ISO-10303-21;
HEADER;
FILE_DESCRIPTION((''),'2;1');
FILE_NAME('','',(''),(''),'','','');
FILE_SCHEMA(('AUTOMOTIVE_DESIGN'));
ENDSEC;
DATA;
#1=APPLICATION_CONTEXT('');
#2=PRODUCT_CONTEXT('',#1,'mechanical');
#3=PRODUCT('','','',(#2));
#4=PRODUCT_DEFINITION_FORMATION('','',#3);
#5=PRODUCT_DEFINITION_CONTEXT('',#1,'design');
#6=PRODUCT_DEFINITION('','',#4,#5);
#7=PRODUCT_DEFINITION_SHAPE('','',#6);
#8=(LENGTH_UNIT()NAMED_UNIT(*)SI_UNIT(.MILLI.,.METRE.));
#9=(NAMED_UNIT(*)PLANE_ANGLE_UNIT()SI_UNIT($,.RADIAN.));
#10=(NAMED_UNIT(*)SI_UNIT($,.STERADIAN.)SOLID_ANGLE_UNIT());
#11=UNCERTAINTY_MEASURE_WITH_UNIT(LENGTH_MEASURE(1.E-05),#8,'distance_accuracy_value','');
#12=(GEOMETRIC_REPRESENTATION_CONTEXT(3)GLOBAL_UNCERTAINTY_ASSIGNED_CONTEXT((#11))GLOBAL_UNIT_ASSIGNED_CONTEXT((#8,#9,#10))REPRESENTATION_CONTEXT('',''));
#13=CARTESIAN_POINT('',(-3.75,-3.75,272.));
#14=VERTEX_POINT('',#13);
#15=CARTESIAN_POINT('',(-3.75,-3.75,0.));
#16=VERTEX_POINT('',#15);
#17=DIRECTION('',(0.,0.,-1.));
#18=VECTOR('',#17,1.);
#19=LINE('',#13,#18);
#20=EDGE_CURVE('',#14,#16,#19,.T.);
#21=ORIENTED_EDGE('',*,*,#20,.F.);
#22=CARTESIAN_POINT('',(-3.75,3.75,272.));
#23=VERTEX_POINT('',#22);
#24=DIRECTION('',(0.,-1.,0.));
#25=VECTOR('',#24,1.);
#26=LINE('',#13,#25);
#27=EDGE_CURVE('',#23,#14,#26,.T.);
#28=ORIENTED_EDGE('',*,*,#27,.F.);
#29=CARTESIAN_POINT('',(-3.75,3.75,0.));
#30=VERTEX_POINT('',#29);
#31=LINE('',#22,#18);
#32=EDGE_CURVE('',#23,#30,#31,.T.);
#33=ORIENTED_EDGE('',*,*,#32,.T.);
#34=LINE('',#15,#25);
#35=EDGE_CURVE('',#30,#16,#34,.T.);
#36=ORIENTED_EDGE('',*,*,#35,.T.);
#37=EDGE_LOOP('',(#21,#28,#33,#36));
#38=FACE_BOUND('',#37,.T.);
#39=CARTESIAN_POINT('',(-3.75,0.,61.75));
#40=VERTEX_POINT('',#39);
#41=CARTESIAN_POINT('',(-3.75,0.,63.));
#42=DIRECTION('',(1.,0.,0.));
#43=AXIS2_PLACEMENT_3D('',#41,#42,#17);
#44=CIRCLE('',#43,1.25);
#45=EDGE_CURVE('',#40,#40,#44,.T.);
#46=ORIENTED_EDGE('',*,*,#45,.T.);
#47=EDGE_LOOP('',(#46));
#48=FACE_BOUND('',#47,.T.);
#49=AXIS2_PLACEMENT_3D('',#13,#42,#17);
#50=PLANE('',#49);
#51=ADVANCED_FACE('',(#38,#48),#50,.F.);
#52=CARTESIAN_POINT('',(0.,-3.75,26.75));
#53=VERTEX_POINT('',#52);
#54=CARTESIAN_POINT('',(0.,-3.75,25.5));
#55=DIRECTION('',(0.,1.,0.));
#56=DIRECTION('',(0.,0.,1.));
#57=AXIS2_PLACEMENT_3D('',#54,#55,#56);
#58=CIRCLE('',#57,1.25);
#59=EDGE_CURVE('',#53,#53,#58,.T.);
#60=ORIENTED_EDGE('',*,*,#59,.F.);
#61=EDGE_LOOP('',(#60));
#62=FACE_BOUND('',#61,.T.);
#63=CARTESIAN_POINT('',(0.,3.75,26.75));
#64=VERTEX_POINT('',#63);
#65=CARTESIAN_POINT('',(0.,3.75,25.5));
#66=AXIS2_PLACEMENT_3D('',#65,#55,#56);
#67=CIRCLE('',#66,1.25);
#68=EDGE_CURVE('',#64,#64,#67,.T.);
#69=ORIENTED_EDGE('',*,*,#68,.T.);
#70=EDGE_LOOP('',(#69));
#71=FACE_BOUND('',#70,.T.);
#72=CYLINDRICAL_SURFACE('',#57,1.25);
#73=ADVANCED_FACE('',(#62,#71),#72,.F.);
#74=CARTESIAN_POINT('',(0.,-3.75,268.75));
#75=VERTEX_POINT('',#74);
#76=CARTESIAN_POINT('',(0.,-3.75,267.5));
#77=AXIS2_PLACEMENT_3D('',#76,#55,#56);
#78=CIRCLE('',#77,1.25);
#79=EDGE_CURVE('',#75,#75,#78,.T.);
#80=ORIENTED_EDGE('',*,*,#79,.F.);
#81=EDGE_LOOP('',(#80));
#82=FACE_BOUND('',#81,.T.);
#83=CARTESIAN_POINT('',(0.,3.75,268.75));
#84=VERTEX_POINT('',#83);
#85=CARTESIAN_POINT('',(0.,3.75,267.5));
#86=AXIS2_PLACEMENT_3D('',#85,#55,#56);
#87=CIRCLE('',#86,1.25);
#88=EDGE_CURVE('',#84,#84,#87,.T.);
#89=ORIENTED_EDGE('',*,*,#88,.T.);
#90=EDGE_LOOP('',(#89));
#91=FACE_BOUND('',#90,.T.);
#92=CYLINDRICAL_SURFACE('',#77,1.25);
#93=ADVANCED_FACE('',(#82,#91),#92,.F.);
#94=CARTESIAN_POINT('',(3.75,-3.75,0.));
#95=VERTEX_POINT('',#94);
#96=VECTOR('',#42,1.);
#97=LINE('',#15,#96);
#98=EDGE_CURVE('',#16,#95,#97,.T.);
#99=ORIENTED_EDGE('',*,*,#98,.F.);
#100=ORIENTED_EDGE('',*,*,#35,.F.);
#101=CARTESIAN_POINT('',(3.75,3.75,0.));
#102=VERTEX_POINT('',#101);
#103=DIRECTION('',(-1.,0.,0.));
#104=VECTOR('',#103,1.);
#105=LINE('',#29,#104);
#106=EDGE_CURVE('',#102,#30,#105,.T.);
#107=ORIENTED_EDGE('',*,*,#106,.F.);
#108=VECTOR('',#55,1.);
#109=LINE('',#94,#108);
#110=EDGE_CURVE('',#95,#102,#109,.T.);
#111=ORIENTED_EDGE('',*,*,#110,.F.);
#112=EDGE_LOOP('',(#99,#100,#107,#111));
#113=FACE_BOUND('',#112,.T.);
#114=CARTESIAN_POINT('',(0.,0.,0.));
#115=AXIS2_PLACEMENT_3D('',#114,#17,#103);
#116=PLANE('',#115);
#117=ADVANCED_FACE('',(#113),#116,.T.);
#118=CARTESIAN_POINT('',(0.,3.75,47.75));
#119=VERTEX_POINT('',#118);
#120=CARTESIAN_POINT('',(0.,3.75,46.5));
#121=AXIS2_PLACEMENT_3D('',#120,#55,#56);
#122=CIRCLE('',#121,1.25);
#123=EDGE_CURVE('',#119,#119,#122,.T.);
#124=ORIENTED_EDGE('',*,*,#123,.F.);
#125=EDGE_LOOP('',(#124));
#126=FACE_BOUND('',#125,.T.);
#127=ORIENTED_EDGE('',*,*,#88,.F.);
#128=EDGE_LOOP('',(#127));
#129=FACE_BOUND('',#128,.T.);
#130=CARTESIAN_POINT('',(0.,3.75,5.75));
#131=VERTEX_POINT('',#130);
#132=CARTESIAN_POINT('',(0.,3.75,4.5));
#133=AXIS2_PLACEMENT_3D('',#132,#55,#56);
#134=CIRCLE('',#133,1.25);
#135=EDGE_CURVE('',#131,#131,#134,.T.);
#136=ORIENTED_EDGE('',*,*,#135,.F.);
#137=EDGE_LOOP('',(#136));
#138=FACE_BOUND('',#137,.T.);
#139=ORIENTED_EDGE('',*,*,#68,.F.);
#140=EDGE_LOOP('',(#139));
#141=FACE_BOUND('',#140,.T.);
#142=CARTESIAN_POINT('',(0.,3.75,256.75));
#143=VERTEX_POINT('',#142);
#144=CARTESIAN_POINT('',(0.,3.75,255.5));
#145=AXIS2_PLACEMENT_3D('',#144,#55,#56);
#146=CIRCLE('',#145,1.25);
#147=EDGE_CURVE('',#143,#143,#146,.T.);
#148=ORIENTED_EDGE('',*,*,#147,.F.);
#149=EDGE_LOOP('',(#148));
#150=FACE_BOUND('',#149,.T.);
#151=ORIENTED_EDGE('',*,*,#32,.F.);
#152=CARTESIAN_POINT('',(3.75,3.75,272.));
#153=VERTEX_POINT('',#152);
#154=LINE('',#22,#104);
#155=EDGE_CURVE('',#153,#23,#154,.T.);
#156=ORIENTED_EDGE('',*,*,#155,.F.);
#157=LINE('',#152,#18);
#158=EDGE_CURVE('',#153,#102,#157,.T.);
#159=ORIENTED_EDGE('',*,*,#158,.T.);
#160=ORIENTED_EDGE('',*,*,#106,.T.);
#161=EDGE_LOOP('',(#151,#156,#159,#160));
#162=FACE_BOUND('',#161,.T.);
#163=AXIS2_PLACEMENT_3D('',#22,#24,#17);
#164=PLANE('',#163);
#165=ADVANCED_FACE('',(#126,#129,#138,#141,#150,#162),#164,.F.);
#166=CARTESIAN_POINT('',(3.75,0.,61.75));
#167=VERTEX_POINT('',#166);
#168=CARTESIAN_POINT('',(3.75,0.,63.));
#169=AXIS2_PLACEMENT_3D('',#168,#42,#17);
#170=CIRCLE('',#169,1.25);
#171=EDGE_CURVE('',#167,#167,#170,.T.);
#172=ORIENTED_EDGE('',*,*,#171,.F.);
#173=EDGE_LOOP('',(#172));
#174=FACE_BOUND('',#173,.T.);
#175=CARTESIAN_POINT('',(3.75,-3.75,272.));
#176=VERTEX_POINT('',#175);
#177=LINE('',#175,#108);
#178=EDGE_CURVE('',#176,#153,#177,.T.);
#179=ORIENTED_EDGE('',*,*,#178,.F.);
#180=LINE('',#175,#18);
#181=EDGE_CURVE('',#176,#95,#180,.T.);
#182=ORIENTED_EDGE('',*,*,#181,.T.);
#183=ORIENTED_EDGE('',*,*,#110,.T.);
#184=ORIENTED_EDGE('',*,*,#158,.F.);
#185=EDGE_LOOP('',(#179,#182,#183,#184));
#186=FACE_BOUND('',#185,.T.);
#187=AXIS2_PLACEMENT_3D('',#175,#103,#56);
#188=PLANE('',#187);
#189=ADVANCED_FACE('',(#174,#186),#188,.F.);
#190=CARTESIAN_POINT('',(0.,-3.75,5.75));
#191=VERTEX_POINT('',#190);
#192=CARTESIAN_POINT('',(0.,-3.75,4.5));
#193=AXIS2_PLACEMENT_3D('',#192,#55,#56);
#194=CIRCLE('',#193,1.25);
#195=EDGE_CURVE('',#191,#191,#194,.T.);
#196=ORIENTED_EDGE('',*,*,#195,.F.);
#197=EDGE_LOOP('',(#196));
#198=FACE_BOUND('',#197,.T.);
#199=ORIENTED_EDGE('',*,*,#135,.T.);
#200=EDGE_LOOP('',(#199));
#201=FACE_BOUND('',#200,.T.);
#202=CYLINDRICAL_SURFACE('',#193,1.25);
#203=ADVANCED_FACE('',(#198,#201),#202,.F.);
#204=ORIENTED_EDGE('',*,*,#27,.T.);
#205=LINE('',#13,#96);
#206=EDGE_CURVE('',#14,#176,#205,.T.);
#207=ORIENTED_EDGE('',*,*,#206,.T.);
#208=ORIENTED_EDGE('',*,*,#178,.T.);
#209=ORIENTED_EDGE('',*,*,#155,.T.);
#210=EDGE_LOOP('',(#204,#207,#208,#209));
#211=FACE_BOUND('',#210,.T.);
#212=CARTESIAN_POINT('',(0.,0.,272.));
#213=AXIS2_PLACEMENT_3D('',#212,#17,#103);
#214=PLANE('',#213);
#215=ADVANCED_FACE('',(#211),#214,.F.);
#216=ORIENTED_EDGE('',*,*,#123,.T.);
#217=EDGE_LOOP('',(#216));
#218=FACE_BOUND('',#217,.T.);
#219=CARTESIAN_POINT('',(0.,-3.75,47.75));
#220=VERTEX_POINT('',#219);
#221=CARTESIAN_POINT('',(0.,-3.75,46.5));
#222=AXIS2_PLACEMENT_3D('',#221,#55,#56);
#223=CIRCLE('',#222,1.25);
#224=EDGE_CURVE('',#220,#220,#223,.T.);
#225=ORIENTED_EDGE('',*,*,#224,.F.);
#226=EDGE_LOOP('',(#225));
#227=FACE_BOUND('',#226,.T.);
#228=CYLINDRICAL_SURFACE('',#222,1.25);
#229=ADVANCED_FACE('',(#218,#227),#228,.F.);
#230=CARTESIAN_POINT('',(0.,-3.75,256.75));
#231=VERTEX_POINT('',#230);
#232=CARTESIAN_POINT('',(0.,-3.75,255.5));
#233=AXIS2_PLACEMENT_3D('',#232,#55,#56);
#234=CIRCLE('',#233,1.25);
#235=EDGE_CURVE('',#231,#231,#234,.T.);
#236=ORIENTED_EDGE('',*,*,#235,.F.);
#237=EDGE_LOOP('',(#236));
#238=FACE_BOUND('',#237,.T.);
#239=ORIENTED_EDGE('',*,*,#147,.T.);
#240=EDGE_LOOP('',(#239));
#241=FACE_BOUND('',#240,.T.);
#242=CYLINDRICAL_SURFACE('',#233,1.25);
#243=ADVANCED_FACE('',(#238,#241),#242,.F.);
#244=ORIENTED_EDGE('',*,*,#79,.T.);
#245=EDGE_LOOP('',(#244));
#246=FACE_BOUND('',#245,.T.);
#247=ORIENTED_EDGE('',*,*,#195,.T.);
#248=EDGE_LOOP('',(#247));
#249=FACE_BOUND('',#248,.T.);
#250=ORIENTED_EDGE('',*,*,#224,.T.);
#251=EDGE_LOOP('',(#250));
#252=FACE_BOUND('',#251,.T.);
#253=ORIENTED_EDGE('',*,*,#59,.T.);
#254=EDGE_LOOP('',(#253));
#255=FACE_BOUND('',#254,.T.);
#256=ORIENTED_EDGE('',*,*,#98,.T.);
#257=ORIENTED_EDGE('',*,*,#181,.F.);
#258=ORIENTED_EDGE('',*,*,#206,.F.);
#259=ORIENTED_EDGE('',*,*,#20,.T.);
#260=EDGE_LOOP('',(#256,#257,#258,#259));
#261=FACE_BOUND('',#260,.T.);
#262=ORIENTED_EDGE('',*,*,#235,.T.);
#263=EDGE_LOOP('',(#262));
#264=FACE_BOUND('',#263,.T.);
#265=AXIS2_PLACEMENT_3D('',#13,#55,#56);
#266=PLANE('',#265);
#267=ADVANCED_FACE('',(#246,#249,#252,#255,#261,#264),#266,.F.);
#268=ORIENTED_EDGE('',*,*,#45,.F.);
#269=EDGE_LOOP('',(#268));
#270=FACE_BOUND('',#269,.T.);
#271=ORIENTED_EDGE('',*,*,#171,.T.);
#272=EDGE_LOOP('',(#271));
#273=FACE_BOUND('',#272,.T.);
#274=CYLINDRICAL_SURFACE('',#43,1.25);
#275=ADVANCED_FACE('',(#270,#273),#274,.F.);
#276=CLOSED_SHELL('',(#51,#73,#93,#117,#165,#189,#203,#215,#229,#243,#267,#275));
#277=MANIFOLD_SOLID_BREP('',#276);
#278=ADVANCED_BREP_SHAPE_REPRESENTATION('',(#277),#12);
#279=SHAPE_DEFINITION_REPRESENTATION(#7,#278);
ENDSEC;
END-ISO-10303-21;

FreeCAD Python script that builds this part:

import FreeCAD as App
import Part
import Sketcher

V = App.Vector
Q = App.Units.Quantity

doc = App.newDocument("Part")
body = doc.addObject("PartDesign::Body", "Body")

# Sketch on XY plane
sketch1 = doc.addObject("Sketcher::SketchObject", "Sketch")
body.addObject(sketch1)
sketch1.AttachmentSupport = (doc.XY_Plane, [""])
sketch1.MapMode = "FlatFace"
sketch1.addGeometry(Part.LineSegment(V(-4, 4, 0), V(-4, -4, 0)), False)
sketch1.addGeometry(Part.LineSegment(V(-4, -4, 0), V(4, -4, 0)), False)
sketch1.addGeometry(Part.LineSegment(V(4, -4, 0), V(4, 4, 0)), False)
sketch1.addGeometry(Part.LineSegment(V(4, 4, 0), V(-4, 4, 0)), False)
sketch1.addConstraint(Sketcher.Constraint("Coincident", 0, 2, 1, 1))
sketch1.addConstraint(Sketcher.Constraint("Coincident", 1, 2, 2, 1))
sketch1.addConstraint(Sketcher.Constraint("Coincident", 2, 2, 3, 1))
sketch1.addConstraint(Sketcher.Constraint("Coincident", 3, 2, 0, 1))
sketch1.addConstraint(Sketcher.Constraint("Vertical", 0))
sketch1.addConstraint(Sketcher.Constraint("Horizontal", 1))
sketch1.addConstraint(Sketcher.Constraint("Vertical", 2))
sketch1.addConstraint(Sketcher.Constraint("Horizontal", 3))
sketch1.addConstraint(Sketcher.Constraint("Symmetric", 0, 2, 2, 2, -1, 1))
sketch1.addConstraint(Sketcher.Constraint("Equal", 3, 0))
sketch1.addConstraint(Sketcher.Constraint("DistanceX", 1, 1, 1, 2, Q("7.5 mm")))
pad1 = doc.addObject("PartDesign::Pad", "Pad")
body.addObject(pad1)
pad1.Profile = sketch1
pad1.Length = 272

# Sketch on XZ plane
sketch2 = doc.addObject("Sketcher::SketchObject", "Sketch001")
body.addObject(sketch2)
sketch2.AttachmentSupport = (doc.XZ_Plane, [""])
sketch2.MapMode = "FlatFace"
sketch2.AttachmentOffset = App.Placement(V(0, 0, -3.75), App.Rotation())
sketch2.addGeometry(Part.Circle(V(0, 4.5, 0), V(0, 0, 1), 1.2), False)
sketch2.addGeometry(Part.Circle(V(0, 25.5, 0), V(0, 0, 1), 1.2), False)
sketch2.addGeometry(Part.Circle(V(0, 46.5, 0), V(0, 0, 1), 1.2), False)
sketch2.addGeometry(Part.Circle(V(0, 255.5, 0), V(0, 0, 1), 1.2), False)
sketch2.addGeometry(Part.Circle(V(0, 267.5, 0), V(0, 0, 1), 1.2), False)
sketch2.addConstraint(Sketcher.Constraint("Equal", 0, 1))
sketch2.addConstraint(Sketcher.Constraint("Equal", 1, 2))
sketch2.addConstraint(Sketcher.Constraint("Equal", 2, 3))
sketch2.addConstraint(Sketcher.Constraint("Equal", 3, 4))
sketch2.addConstraint(Sketcher.Constraint("PointOnObject", 0, 3, -2))
sketch2.addConstraint(Sketcher.Constraint("PointOnObject", 1, 3, -2))
sketch2.addConstraint(Sketcher.Constraint("PointOnObject", 2, 3, -2))
sketch2.addConstraint(Sketcher.Constraint("PointOnObject", 3, 3, -2))
sketch2.addConstraint(Sketcher.Constraint("PointOnObject", 4, 3, -2))
sketch2.addConstraint(Sketcher.Constraint("Diameter", 0, Q("2.5 mm")))
sketch2.addConstraint(Sketcher.Constraint("DistanceY", 0, 3, 1, 3, Q("21 mm")))
sketch2.addConstraint(Sketcher.Constraint("DistanceY", 1, 3, 2, 3, Q("21 mm")))
sketch2.addConstraint(Sketcher.Constraint("DistanceY", 2, 3, 3, 3, Q("209 mm")))
sketch2.addConstraint(Sketcher.Constraint("DistanceY", 3, 3, 4, 3, Q("12 mm")))
sketch2.addConstraint(Sketcher.Constraint("DistanceY", -1, 1, 0, 3, Q("4.5 mm")))
pocket1 = doc.addObject("PartDesign::Pocket", "Pocket")
body.addObject(pocket1)
pocket1.Profile = sketch2
pocket1.Type = "ThroughAll"
pocket1.Reversed = True

# Sketch on YZ plane
sketch3 = doc.addObject("Sketcher::SketchObject", "Sketch002")
body.addObject(sketch3)
sketch3.AttachmentSupport = (doc.YZ_Plane, [""])
sketch3.MapMode = "FlatFace"
sketch3.AttachmentOffset = App.Placement(V(0, 0, 3.75), App.Rotation())
sketch3.addGeometry(Part.Circle(V(0, 63, 0), V(0, 0, 1), 1.2), False)
sketch3.addConstraint(Sketcher.Constraint("PointOnObject", 0, 3, -2))
sketch3.addConstraint(Sketcher.Constraint("Diameter", 0, Q("2.5 mm")))
sketch3.addConstraint(Sketcher.Constraint("DistanceY", -1, 1, 0, 3, Q("63 mm")))
pocket2 = doc.addObject("PartDesign::Pocket", "Pocket001")
body.addObject(pocket2)
pocket2.Profile = sketch3
pocket2.Type = "ThroughAll"

doc.recompute()
